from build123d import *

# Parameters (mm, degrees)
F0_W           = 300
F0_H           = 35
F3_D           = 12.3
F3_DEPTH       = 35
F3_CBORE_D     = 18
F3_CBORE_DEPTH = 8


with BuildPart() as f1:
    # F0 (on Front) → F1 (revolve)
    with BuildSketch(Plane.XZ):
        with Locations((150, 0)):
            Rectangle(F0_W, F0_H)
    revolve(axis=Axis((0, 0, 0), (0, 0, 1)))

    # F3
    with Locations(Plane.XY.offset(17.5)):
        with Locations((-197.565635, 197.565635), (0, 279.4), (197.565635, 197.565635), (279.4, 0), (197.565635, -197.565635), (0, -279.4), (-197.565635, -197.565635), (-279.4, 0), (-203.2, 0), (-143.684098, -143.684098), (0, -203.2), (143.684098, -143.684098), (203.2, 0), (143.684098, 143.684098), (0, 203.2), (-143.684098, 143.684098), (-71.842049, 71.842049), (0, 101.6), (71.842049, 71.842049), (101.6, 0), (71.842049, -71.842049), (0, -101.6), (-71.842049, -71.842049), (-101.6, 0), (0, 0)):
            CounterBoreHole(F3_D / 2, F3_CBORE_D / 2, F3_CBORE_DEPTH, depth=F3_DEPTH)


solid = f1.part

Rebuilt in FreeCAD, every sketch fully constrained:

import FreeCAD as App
import Part
import Sketcher


def add_polygon(sketch, points):
    """Adds a closed chain of lines whose ends are joined by coincident constraints."""
    first, n = sketch.GeometryCount, len(points)
    for a, b in zip(points, points[1:] + points[:1]):
        sketch.addGeometry(Part.LineSegment(App.Vector(*a, 0), App.Vector(*b, 0)), False)
    for i in range(n):
        sketch.addConstraint(Sketcher.Constraint("Coincident", first + i, 2, first + (i + 1) % n, 1))

doc = App.newDocument("Part")
body = doc.addObject("PartDesign::Body", "Body")

# Sketch on XZ plane
sketch1 = body.newObject("Sketcher::SketchObject", "Sketch")
sketch1.AttachmentSupport = (doc.getObject("XZ_Plane"), [""])
sketch1.MapMode = "FlatFace"
add_polygon(sketch1, [(0, 18), (0, -18), (300, -18), (300, 18)])  # lines 0-3
sketch1.addConstraint(Sketcher.Constraint("Vertical", 0))
sketch1.addConstraint(Sketcher.Constraint("Horizontal", 1))
sketch1.addConstraint(Sketcher.Constraint("Vertical", 2))
sketch1.addConstraint(Sketcher.Constraint("Horizontal", 3))
sketch1.addConstraint(Sketcher.Constraint("Symmetric", 0, 2, 3, 2, -1, 1))
sketch1.addConstraint(Sketcher.Constraint("DistanceX", 1, 1, 1, 2, 300.0))
sketch1.addConstraint(Sketcher.Constraint("DistanceY", 0, 2, 0, 1, 35.0))
revolution = body.newObject("PartDesign::Revolution", "Revolution")
revolution.Profile = sketch1
revolution.ReferenceAxis = (sketch1, ["V_Axis"])
revolution.Angle = 360

# Sketch on XY plane
sketch2 = body.newObject("Sketcher::SketchObject", "Sketch001")
sketch2.AttachmentSupport = (doc.getObject("XY_Plane"), [""])
sketch2.MapMode = "FlatFace"
sketch2.AttachmentOffset = App.Placement(App.Vector(0, 0, 17.5), App.Rotation())
sketch2.addGeometry(Part.Circle(App.Vector(-198, 198, 0), App.Vector(0, 0, 1), 6), False)
sketch2.addGeometry(Part.Circle(App.Vector(0, 279, 0), App.Vector(0, 0, 1), 6), False)
sketch2.addGeometry(Part.Circle(App.Vector(198, 198, 0), App.Vector(0, 0, 1), 6), False)
sketch2.addGeometry(Part.Circle(App.Vector(279, 0, 0), App.Vector(0, 0, 1), 6), False)
sketch2.addGeometry(Part.Circle(App.Vector(198, -198, 0), App.Vector(0, 0, 1), 6), False)
sketch2.addGeometry(Part.Circle(App.Vector(0, -279, 0), App.Vector(0, 0, 1), 6), False)
sketch2.addGeometry(Part.Circle(App.Vector(-198, -198, 0), App.Vector(0, 0, 1), 6), False)
sketch2.addGeometry(Part.Circle(App.Vector(-279, 0, 0), App.Vector(0, 0, 1), 6), False)
sketch2.addGeometry(Part.Circle(App.Vector(-203, 0, 0), App.Vector(0, 0, 1), 6), False)
sketch2.addGeometry(Part.Circle(App.Vector(-144, -144, 0), App.Vector(0, 0, 1), 6), False)
sketch2.addGeometry(Part.Circle(App.Vector(0, -203, 0), App.Vector(0, 0, 1), 6), False)
sketch2.addGeometry(Part.Circle(App.Vector(144, -144, 0), App.Vector(0, 0, 1), 6), False)
sketch2.addGeometry(Part.Circle(App.Vector(203, 0, 0), App.Vector(0, 0, 1), 6), False)
sketch2.addGeometry(Part.Circle(App.Vector(144, 144, 0), App.Vector(0, 0, 1), 6), False)
sketch2.addGeometry(Part.Circle(App.Vector(0, 203, 0), App.Vector(0, 0, 1), 6), False)
sketch2.addGeometry(Part.Circle(App.Vector(-144, 144, 0), App.Vector(0, 0, 1), 6), False)
sketch2.addGeometry(Part.Circle(App.Vector(-72, 72, 0), App.Vector(0, 0, 1), 6), False)
sketch2.addGeometry(Part.Circle(App.Vector(0, 102, 0), App.Vector(0, 0, 1), 6), False)
sketch2.addGeometry(Part.Circle(App.Vector(72, 72, 0), App.Vector(0, 0, 1), 6), False)
sketch2.addGeometry(Part.Circle(App.Vector(102, 0, 0), App.Vector(0, 0, 1), 6), False)
sketch2.addGeometry(Part.Circle(App.Vector(72, -72, 0), App.Vector(0, 0, 1), 6), False)
sketch2.addGeometry(Part.Circle(App.Vector(0, -102, 0), App.Vector(0, 0, 1), 6), False)
sketch2.addGeometry(Part.Circle(App.Vector(-72, -72, 0), App.Vector(0, 0, 1), 6), False)
sketch2.addGeometry(Part.Circle(App.Vector(-102, 0, 0), App.Vector(0, 0, 1), 6), False)
sketch2.addGeometry(Part.Circle(App.Vector(0, 0, 0), App.Vector(0, 0, 1), 6), False)
sketch2.addConstraint(Sketcher.Constraint("Coincident", 24, 3, -1, 1))
sketch2.addConstraint(Sketcher.Constraint("Equal", 0, 1))
sketch2.addConstraint(Sketcher.Constraint("Equal", 1, 2))
sketch2.addConstraint(Sketcher.Constraint("Equal", 2, 3))
sketch2.addConstraint(Sketcher.Constraint("Equal", 3, 4))
sketch2.addConstraint(Sketcher.Constraint("Equal", 4, 5))
sketch2.addConstraint(Sketcher.Constraint("Equal", 5, 6))
sketch2.addConstraint(Sketcher.Constraint("Equal", 6, 7))
sketch2.addConstraint(Sketcher.Constraint("Equal", 7, 8))
sketch2.addConstraint(Sketcher.Constraint("Equal", 8, 9))
sketch2.addConstraint(Sketcher.Constraint("Equal", 9, 10))
sketch2.addConstraint(Sketcher.Constraint("Equal", 10, 11))
sketch2.addConstraint(Sketcher.Constraint("Equal", 11, 12))
sketch2.addConstraint(Sketcher.Constraint("Equal", 12, 13))
sketch2.addConstraint(Sketcher.Constraint("Equal", 13, 14))
sketch2.addConstraint(Sketcher.Constraint("Equal", 14, 15))
sketch2.addConstraint(Sketcher.Constraint("Equal", 15, 16))
sketch2.addConstraint(Sketcher.Constraint("Equal", 16, 17))
sketch2.addConstraint(Sketcher.Constraint("Equal", 17, 18))
sketch2.addConstraint(Sketcher.Constraint("Equal", 18, 19))
sketch2.addConstraint(Sketcher.Constraint("Equal", 19, 20))
sketch2.addConstraint(Sketcher.Constraint("Equal", 20, 21))
sketch2.addConstraint(Sketcher.Constraint("Equal", 21, 22))
sketch2.addConstraint(Sketcher.Constraint("Equal", 22, 23))
sketch2.addConstraint(Sketcher.Constraint("Equal", 23, 24))
sketch2.addConstraint(Sketcher.Constraint("Symmetric", 0, 3, 4, 3, -1, 1))
sketch2.addConstraint(Sketcher.Constraint("Symmetric", 1, 3, 5, 3, -1, 1))
sketch2.addConstraint(Sketcher.Constraint("Symmetric", 2, 3, 6, 3, -1, 1))
sketch2.addConstraint(Sketcher.Constraint("Symmetric", 3, 3, 7, 3, -1, 1))
sketch2.addConstraint(Sketcher.Constraint("Symmetric", 8, 3, 12, 3, -1, 1))
sketch2.addConstraint(Sketcher.Constraint("Symmetric", 9, 3, 13, 3, -1, 1))
sketch2.addConstraint(Sketcher.Constraint("Symmetric", 10, 3, 14, 3, -1, 1))
sketch2.addConstraint(Sketcher.Constraint("Symmetric", 11, 3, 15, 3, -1, 1))
sketch2.addConstraint(Sketcher.Constraint("Symmetric", 16, 3, 20, 3, -1, 1))
sketch2.addConstraint(Sketcher.Constraint("Symmetric", 17, 3, 21, 3, -1, 1))
sketch2.addConstraint(Sketcher.Constraint("Symmetric", 18, 3, 22, 3, -1, 1))
sketch2.addConstraint(Sketcher.Constraint("Symmetric", 19, 3, 23, 3, -1, 1))
sketch2.addConstraint(Sketcher.Constraint("Symmetric", 0, 3, 2, 3, -2))
sketch2.addConstraint(Sketcher.Constraint("Symmetric", 9, 3, 11, 3, -2))
sketch2.addConstraint(Sketcher.Constraint("Symmetric", 16, 3, 18, 3, -2))
sketch2.addConstraint(Sketcher.Constraint("PointOnObject", 1, 3, -2))
sketch2.addConstraint(Sketcher.Constraint("PointOnObject", 3, 3, -1))
sketch2.addConstraint(Sketcher.Constraint("PointOnObject", 8, 3, -1))
sketch2.addConstraint(Sketcher.Constraint("PointOnObject", 10, 3, -2))
sketch2.addConstraint(Sketcher.Constraint("PointOnObject", 17, 3, -2))
sketch2.addConstraint(Sketcher.Constraint("PointOnObject", 19, 3, -1))
sketch2.addConstraint(Sketcher.Constraint("Diameter", 0, 12.3))
sketch2.addConstraint(Sketcher.Constraint("DistanceY", -1, 1, 1, 3, 279.4))
sketch2.addConstraint(Sketcher.Constraint("DistanceX", -1, 1, 3, 3, 279.4))
sketch2.addConstraint(Sketcher.Constraint("DistanceX", 8, 3, -1, 1, 203.2))
sketch2.addConstraint(Sketcher.Constraint("DistanceY", 10, 3, -1, 1, 203.2))
sketch2.addConstraint(Sketcher.Constraint("DistanceY", -1, 1, 17, 3, 101.6))
sketch2.addConstraint(Sketcher.Constraint("DistanceX", -1, 1, 19, 3, 101.6))
sketch2.addConstraint(Sketcher.Constraint("DistanceX", 9, 3, -1, 1, 143.684098))
sketch2.addConstraint(Sketcher.Constraint("DistanceY", 9, 3, -1, 1, 143.684098))
sketch2.addConstraint(Sketcher.Constraint("DistanceX", 16, 3, 18, 3, 143.684098))
sketch2.addConstraint(Sketcher.Constraint("DistanceY", 20, 3, 18, 3, 143.684098))
sketch2.addConstraint(Sketcher.Constraint("DistanceX", 0, 3, 2, 3, 395.13127))
sketch2.addConstraint(Sketcher.Constraint("DistanceY", 4, 3, 2, 3, 395.13127))
doc.recompute()
hole = body.newObject("PartDesign::Hole", "Hole")
hole.Profile = sketch2
hole.ThreadType = "None"
hole.Diameter = 12.3
hole.DepthType = "Dimension"
hole.Depth = 35
hole.DrillPoint = "Flat"
hole.HoleCutType = "Counterbore"
hole.HoleCutDiameter = 18
hole.HoleCutDepth = 8

doc.recompute()
